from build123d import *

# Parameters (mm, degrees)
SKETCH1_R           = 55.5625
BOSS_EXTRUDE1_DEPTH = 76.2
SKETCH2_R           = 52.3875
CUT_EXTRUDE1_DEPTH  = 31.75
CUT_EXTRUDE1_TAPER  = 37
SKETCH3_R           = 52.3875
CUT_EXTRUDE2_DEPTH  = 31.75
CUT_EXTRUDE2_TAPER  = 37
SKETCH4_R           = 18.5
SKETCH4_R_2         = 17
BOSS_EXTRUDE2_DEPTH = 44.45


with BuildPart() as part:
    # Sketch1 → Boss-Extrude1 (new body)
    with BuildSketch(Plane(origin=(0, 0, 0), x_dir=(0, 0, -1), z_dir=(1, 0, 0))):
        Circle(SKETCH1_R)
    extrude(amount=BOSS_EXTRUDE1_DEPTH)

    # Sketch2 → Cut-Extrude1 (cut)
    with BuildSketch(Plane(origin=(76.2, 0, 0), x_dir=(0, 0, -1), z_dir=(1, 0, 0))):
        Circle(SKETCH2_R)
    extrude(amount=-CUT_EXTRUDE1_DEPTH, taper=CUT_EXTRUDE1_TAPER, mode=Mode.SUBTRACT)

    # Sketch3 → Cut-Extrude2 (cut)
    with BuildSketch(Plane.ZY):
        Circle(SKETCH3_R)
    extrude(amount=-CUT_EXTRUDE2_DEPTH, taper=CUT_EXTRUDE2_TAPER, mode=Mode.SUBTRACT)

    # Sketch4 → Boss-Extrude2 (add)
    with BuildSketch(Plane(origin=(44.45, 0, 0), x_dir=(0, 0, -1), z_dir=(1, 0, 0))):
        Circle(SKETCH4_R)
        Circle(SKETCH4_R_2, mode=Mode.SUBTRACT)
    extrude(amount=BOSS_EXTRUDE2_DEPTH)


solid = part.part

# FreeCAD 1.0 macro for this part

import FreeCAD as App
import Part
import Sketcher

V = App.Vector
Q = App.Units.Quantity

doc = App.newDocument("Part")
params = doc.addObject("Spreadsheet::Sheet", "Params")
for row, (alias, value) in enumerate([
    ("sketch1_diameter", "4.375 in"),
    ("pad1_length", "3 in"),
    ("sketch2_diameter", "4.125 in"),
    ("pocket1_length", "1.25 in"),
    ("pocket1_taper", "-37 deg"),
    ("sketch3_diameter", "4.125 in"),
    ("pocket2_length", "1.25 in"),
    ("pocket2_taper", "-37 deg"),
    ("pad2_length", "1.75 in"),
], start=1):
    params.set(f"A{row}", alias)
    params.set(f"B{row}", "=" + value)
    params.setAlias(f"B{row}", alias)

body = doc.addObject("PartDesign::Body", "Body")

# Sketch on YZ plane
sketch1 = doc.addObject("Sketcher::SketchObject", "Sketch")
body.addObject(sketch1)
sketch1.AttachmentSupport = (doc.YZ_Plane, [""])
sketch1.MapMode = "FlatFace"
sketch1.addGeometry(Part.Circle(V(0, 0, 0), V(0, 0, 1), 56), False)
sketch1.addConstraint([
    Sketcher.Constraint("Coincident", 0, 3, -1, 1),
    Sketcher.Constraint("Diameter", 0, Q("4.375 in")),
])
sketch1.setExpression("Constraints[1]", "Params.sketch1_diameter")
pad1 = doc.addObject("PartDesign::Pad", "Pad")
body.addObject(pad1)
pad1.Profile = sketch1
pad1.setExpression("Length", "Params.pad1_length")

# Sketch on YZ plane
sketch2 = doc.addObject("Sketcher::SketchObject", "Sketch001")
body.addObject(sketch2)
sketch2.AttachmentSupport = (doc.YZ_Plane, [""])
sketch2.MapMode = "FlatFace"
sketch2.AttachmentOffset = App.Placement(V(0, 0, 3 * 25.4), App.Rotation())
sketch2.addGeometry(Part.Circle(V(0, 0, 0), V(0, 0, 1), 52), False)
sketch2.addConstraint([
    Sketcher.Constraint("Coincident", 0, 3, -1, 1),
    Sketcher.Constraint("Diameter", 0, Q("4.125 in")),
])
sketch2.setExpression("Constraints[1]", "Params.sketch2_diameter")
pocket1 = doc.addObject("PartDesign::Pocket", "Pocket")
body.addObject(pocket1)
pocket1.Profile = sketch2
pocket1.setExpression("Length", "Params.pocket1_length")
pocket1.setExpression("TaperAngle", "Params.pocket1_taper")

# Sketch on YZ plane
sketch3 = doc.addObject("Sketcher::SketchObject", "Sketch002")
body.addObject(sketch3)
sketch3.AttachmentSupport = (doc.YZ_Plane, [""])
sketch3.MapMode = "FlatFace"
sketch3.addGeometry(Part.Circle(V(0, 0, 0), V(0, 0, 1), 52), False)
sketch3.addConstraint([
    Sketcher.Constraint("Coincident", 0, 3, -1, 1),
    Sketcher.Constraint("Diameter", 0, Q("4.125 in")),
])
sketch3.setExpression("Constraints[1]", "Params.sketch3_diameter")
pocket2 = doc.addObject("PartDesign::Pocket", "Pocket001")
body.addObject(pocket2)
pocket2.Profile = sketch3
pocket2.setExpression("Length", "Params.pocket2_length")
pocket2.Reversed = True
pocket2.setExpression("TaperAngle", "Params.pocket2_taper")

# Sketch on YZ plane
sketch4 = doc.addObject("Sketcher::SketchObject", "Sketch003")
body.addObject(sketch4)
sketch4.AttachmentSupport = (doc.YZ_Plane, [""])
sketch4.MapMode = "FlatFace"
sketch4.AttachmentOffset = App.Placement(V(0, 0, 1.75 * 25.4), App.Rotation())
sketch4.addGeometry([
    Part.Circle(V(0, 0, 0), V(0, 0, 1), 18),
    Part.Circle(V(0, 0, 0), V(0, 0, 1), 17),
], False)
sketch4.addConstraint([
    Sketcher.Constraint("Coincident", 0, 3, -1, 1),
    Sketcher.Constraint("Coincident", 1, 3, -1, 1),
    Sketcher.Constraint("Diameter", 0, Q("37 mm")),
    Sketcher.Constraint("Diameter", 1, Q("34 mm")),
])
pad2 = doc.addObject("PartDesign::Pad", "Pad001")
body.addObject(pad2)
pad2.Profile = sketch4
pad2.setExpression("Length", "Params.pad2_length")

doc.recompute()
